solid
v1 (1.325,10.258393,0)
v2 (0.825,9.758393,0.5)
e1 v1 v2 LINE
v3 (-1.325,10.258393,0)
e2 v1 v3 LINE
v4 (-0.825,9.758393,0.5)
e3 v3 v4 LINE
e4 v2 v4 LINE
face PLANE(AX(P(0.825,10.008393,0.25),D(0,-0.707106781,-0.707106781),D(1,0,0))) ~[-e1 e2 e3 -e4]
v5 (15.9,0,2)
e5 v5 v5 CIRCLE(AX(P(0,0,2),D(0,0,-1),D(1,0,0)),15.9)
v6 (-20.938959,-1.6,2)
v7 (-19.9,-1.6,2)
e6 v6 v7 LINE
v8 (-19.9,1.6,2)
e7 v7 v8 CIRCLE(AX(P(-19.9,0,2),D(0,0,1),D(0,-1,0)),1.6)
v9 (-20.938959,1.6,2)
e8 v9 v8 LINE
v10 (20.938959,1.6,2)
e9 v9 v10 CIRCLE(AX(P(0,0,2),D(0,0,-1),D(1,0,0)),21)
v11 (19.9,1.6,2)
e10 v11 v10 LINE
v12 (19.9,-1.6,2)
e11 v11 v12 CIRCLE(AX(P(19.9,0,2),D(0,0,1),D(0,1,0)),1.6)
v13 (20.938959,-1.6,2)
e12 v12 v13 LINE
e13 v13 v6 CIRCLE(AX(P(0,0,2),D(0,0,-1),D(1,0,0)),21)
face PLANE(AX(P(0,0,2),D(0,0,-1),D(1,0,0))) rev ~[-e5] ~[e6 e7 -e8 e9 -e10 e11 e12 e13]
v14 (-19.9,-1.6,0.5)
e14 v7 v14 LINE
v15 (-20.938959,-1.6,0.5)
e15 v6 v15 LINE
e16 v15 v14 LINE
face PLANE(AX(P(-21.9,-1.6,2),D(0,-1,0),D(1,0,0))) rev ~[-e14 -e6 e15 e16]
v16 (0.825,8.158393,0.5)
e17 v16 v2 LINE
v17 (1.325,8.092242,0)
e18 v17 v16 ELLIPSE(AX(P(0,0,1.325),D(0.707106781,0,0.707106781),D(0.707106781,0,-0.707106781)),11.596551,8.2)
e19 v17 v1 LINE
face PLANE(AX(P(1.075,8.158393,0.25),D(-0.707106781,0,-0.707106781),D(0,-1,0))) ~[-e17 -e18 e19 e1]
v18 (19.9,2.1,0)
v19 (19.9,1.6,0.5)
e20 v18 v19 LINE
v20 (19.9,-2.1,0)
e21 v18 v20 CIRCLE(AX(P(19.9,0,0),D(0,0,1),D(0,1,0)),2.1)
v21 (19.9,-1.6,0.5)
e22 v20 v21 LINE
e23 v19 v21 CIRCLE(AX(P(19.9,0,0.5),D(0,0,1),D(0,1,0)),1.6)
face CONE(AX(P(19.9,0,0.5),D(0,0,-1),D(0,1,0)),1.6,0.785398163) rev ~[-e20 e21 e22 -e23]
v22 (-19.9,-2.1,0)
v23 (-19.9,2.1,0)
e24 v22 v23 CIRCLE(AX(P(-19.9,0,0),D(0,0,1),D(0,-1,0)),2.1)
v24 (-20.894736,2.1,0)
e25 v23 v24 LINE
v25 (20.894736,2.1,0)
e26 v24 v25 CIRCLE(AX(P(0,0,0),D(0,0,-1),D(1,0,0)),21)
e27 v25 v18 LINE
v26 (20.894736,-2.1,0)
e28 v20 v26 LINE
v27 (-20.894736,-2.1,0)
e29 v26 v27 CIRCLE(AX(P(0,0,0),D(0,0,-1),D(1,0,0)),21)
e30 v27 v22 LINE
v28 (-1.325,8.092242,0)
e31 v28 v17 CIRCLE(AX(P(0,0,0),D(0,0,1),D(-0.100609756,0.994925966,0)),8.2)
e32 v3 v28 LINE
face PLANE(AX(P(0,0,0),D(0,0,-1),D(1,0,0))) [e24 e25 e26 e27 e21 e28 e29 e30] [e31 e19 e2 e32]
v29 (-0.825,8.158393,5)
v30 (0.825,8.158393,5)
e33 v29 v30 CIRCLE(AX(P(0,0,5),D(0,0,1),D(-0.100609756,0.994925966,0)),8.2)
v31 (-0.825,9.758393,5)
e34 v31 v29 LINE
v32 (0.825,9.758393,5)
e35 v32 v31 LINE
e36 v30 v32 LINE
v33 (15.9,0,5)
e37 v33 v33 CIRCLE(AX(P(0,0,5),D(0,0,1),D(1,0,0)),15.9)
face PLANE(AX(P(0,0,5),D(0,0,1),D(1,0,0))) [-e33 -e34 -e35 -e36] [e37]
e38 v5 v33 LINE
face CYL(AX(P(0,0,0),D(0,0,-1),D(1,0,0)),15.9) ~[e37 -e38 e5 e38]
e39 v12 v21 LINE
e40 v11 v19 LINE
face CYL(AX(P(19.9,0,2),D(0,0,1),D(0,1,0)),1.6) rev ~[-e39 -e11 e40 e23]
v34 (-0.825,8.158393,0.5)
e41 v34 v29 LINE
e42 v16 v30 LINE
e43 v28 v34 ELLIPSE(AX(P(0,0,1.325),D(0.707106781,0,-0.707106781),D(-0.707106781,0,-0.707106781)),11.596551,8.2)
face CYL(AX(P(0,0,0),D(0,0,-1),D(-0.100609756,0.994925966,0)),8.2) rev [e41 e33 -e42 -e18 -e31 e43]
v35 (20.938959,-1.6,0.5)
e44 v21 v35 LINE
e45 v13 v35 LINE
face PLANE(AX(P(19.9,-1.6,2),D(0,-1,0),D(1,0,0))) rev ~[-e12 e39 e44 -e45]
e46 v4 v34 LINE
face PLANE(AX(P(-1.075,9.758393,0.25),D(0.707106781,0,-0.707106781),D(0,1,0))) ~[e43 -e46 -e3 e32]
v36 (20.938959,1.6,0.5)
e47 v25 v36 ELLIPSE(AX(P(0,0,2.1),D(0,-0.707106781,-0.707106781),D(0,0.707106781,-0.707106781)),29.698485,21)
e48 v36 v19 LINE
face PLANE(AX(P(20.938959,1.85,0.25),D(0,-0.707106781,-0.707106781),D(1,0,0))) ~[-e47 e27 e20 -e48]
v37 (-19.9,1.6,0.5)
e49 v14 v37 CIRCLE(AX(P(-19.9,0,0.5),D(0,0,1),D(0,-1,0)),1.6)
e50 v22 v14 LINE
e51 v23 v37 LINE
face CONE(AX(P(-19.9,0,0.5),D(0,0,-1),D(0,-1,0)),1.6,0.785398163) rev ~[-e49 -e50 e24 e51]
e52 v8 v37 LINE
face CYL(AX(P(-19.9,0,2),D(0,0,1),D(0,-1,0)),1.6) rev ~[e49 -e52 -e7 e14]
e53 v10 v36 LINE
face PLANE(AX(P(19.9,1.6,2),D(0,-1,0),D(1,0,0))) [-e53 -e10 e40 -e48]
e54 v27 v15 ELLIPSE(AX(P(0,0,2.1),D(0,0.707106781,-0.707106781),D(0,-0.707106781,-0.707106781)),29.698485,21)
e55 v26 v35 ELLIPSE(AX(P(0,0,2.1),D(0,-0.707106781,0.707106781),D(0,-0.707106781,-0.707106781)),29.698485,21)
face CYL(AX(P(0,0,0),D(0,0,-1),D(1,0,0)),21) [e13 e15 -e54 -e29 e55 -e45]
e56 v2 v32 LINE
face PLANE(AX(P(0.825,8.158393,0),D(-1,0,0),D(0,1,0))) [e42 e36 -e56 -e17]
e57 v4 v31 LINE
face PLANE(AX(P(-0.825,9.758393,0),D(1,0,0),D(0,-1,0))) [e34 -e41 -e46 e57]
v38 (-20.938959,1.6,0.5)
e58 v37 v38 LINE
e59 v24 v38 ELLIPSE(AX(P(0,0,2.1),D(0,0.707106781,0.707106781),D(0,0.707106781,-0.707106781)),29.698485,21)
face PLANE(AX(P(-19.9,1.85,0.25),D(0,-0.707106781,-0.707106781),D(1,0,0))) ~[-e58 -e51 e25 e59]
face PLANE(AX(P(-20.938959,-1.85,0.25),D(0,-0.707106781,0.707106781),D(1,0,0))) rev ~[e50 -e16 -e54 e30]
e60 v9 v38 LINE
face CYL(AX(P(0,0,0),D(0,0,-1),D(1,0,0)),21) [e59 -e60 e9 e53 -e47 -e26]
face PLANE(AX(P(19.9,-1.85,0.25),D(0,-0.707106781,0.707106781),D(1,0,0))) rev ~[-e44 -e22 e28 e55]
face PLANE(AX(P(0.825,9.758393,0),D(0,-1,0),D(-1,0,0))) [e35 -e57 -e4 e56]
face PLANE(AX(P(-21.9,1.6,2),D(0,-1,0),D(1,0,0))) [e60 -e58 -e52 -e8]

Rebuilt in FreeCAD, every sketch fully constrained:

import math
import FreeCAD as App
import Part
import Sketcher
from FreeCAD import Vector


def edges_at(feature, points):
    """Names of the edges that pass closest to the given points."""
    edges = feature.Shape.Edges
    near = lambda p: min(range(len(edges)), key=lambda i: edges[i].distToShape(Part.Vertex(*p))[0])
    return sorted({f"Edge{near(p) + 1}" for p in points})

doc = App.newDocument("Part")
body = doc.addObject("PartDesign::Body", "Body")

# Sketch on XY plane
sketch1 = body.newObject("Sketcher::SketchObject", "Sketch")
sketch1.AttachmentSupport = (doc.getObject("XY_Plane"), [""])
sketch1.MapMode = "FlatFace"
sketch1.addGeometry([
    Part.Circle(Vector(0, 0, 0), Vector(0, 0, 1), 15.9),  # 0
    Part.LineSegment(Vector(0.8, 9.8, 0), Vector(0.8, 8.2, 0)),  # 1
    Part.ArcOfCircle(Part.Circle(Vector(0, 0, 0), Vector(0, 0, 1), 8.2), math.radians(96), math.radians(444)),  # 2
    Part.LineSegment(Vector(-0.8, 8.2, 0), Vector(-0.8, 9.8, 0)),  # 3
    Part.LineSegment(Vector(-0.8, 9.8, 0), Vector(0.8, 9.8, 0)),  # 4
], False)
sketch1.addConstraint([
    Sketcher.Constraint("Coincident", 1, 2, 2, 2),
    Sketcher.Constraint("Coincident", 2, 1, 3, 1),
    Sketcher.Constraint("Coincident", 3, 2, 4, 1),
    Sketcher.Constraint("Coincident", 4, 2, 1, 1),
    Sketcher.Constraint("Vertical", 1),
    Sketcher.Constraint("Vertical", 3),
    Sketcher.Constraint("Horizontal", 4),
    Sketcher.Constraint("Coincident", 0, 3, -1, 1),
    Sketcher.Constraint("Coincident", 2, 3, -1, 1),
    Sketcher.Constraint("Horizontal", 1, 2, 2, 1),
    Sketcher.Constraint("Diameter", 0, 31.8),
    Sketcher.Constraint("Radius", 2, 8.2),
    Sketcher.Constraint("DistanceY", 1, 2, 1, 1, 1.6),
    Sketcher.Constraint("DistanceX", 4, 1, 4, 2, 1.65),
])
pad1 = body.newObject("PartDesign::Pad", "Pad")
pad1.Profile = sketch1
pad1.Length = 5

# Sketch on XY plane
sketch2 = body.newObject("Sketcher::SketchObject", "Sketch001")
sketch2.AttachmentSupport = (doc.getObject("XY_Plane"), [""])
sketch2.MapMode = "FlatFace"
sketch2.addGeometry([
    Part.Circle(Vector(0, 0, 0), Vector(0, 0, 1), 21),
    Part.Circle(Vector(0, 0, 0), Vector(0, 0, 1), 16),
], False)
sketch2.addConstraint([
    Sketcher.Constraint("Coincident", 0, 3, -1, 1),
    Sketcher.Constraint("Coincident", 1, 3, -1, 1),
    Sketcher.Constraint("Diameter", 0, 42.0),
    Sketcher.Constraint("Diameter", 1, 31.8),
])
pad2 = body.newObject("PartDesign::Pad", "Pad001")
pad2.Profile = sketch2
pad2.Length = 2

# Sketch on XY plane
sketch3 = body.newObject("Sketcher::SketchObject", "Sketch002")
sketch3.AttachmentSupport = (doc.getObject("XY_Plane"), [""])
sketch3.MapMode = "FlatFace"
sketch3.AttachmentOffset = App.Placement(Vector(0, 0, 2), App.Rotation())
sketch3.addGeometry([
    Part.ArcOfCircle(Part.Circle(Vector(-19.9, 0, 0), Vector(0, 0, 1), 1.6), math.radians(-90), math.radians(90)),  # 0
    Part.LineSegment(Vector(-19.9, 1.6, 0), Vector(-21.9, 1.6, 0)),  # 1
    Part.LineSegment(Vector(-21.9, 1.6, 0), Vector(-21.9, -1.6, 0)),  # 2
    Part.LineSegment(Vector(-21.9, -1.6, 0), Vector(-19.9, -1.6, 0)),  # 3
    Part.ArcOfCircle(Part.Circle(Vector(19.9, 0, 0), Vector(0, 0, 1), 1.6), math.radians(90), math.radians(270)),  # 4
    Part.LineSegment(Vector(19.9, -1.6, 0), Vector(21.9, -1.6, 0)),  # 5
    Part.LineSegment(Vector(21.9, -1.6, 0), Vector(21.9, 1.6, 0)),  # 6
    Part.LineSegment(Vector(21.9, 1.6, 0), Vector(19.9, 1.6, 0)),  # 7
], False)
sketch3.addConstraint([
    Sketcher.Constraint("Tangent", 0, 2, 1, 1),
    Sketcher.Constraint("Coincident", 1, 2, 2, 1),
    Sketcher.Constraint("Coincident", 2, 2, 3, 1),
    Sketcher.Constraint("Tangent", 3, 2, 0, 1),
    Sketcher.Constraint("Tangent", 4, 2, 5, 1),
    Sketcher.Constraint("Coincident", 5, 2, 6, 1),
    Sketcher.Constraint("Coincident", 6, 2, 7, 1),
    Sketcher.Constraint("Tangent", 7, 2, 4, 1),
    Sketcher.Constraint("Horizontal", 1),
    Sketcher.Constraint("Vertical", 2),
    Sketcher.Constraint("Horizontal", 3),
    Sketcher.Constraint("Horizontal", 5),
    Sketcher.Constraint("Vertical", 6),
    Sketcher.Constraint("Horizontal", 7),
    Sketcher.Constraint("Equal", 0, 4),
    Sketcher.Constraint("Symmetric", 0, 3, 4, 3, -1, 1),
    Sketcher.Constraint("Symmetric", 2, 2, 5, 2, -2),
    Sketcher.Constraint("Radius", 0, 1.6),
    Sketcher.Constraint("DistanceX", 1, 2, 1, 1, 2.0),
    Sketcher.Constraint("DistanceX", 0, 3, -1, 1, 19.9),
])
pocket1 = body.newObject("PartDesign::Pocket", "Pocket")
pocket1.Profile = sketch3
pocket1.Length = 5
doc.recompute()

chamfer = body.newObject("PartDesign::Chamfer", "Chamfer")
chamfer.Base = (pocket1, edges_at(pocket1, [
    (0.825, 8.958, 0),
    (0, 9.758, 0),
    (-0.825, 8.958, 0),
    (-18.3, 0, 0),
    (18.3, 0, 0),
]))
chamfer.Size = 0.5

doc.recompute()
